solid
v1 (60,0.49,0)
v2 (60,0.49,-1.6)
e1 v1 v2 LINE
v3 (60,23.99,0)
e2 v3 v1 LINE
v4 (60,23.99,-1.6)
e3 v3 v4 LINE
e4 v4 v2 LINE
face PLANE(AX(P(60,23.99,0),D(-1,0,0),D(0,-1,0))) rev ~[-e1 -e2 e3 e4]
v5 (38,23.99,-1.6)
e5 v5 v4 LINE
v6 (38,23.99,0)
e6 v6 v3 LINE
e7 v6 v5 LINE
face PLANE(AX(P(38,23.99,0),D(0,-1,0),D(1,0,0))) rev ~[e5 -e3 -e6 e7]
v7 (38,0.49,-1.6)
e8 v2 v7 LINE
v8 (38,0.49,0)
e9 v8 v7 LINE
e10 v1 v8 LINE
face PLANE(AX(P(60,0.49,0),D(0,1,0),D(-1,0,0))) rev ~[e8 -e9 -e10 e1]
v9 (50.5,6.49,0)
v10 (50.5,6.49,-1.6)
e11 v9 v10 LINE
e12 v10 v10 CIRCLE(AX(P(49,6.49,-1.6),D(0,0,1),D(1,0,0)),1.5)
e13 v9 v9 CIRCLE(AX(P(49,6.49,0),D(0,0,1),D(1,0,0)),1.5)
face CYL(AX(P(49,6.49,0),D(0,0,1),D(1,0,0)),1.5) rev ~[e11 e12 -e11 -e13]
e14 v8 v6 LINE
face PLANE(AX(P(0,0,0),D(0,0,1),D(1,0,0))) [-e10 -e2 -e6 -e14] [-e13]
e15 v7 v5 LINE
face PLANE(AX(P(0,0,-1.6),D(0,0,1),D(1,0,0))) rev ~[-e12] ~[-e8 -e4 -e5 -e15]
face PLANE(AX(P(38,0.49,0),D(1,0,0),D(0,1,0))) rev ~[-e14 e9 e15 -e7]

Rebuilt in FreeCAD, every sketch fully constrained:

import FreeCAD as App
import Part
import Sketcher
from FreeCAD import Vector

doc = App.newDocument("Part")
body = doc.addObject("PartDesign::Body", "Body")

sketch1 = body.newObject("Sketcher::SketchObject", "Sketch")
sketch1.AttachmentSupport = (doc.getObject("XY_Plane"), [""])
sketch1.MapMode = "FlatFace"
sketch1.addGeometry([
    Part.LineSegment(Vector(60, 24, 0), Vector(38, 24, 0)),
    Part.LineSegment(Vector(38, 24, 0), Vector(38, 0.5, 0)),
    Part.LineSegment(Vector(38, 0.5, 0), Vector(60, 0.5, 0)),
    Part.LineSegment(Vector(60, 0.5, 0), Vector(60, 24, 0)),
    Part.Circle(Vector(49, 6.5, 0), Vector(0, 0, 1), 1.5),
], False)
sketch1.addConstraint([
    Sketcher.Constraint("Coincident", 0, 2, 1, 1),
    Sketcher.Constraint("Coincident", 1, 2, 2, 1),
    Sketcher.Constraint("Coincident", 2, 2, 3, 1),
    Sketcher.Constraint("Coincident", 3, 2, 0, 1),
    Sketcher.Constraint("Horizontal", 0),
    Sketcher.Constraint("Vertical", 1),
    Sketcher.Constraint("Horizontal", 2),
    Sketcher.Constraint("Vertical", 3),
    Sketcher.Constraint("Diameter", 4, 3.0),
    Sketcher.Constraint("DistanceX", -1, 1, 0, 2, 38.0),
    Sketcher.Constraint("DistanceX", -1, 1, 2, 2, 60.0),
    Sketcher.Constraint("DistanceY", -1, 1, 4, 3, 6.49),
    Sketcher.Constraint("DistanceY", -1, 1, 0, 2, 23.99),
    Sketcher.Constraint("DistanceY", -1, 1, 1, 2, 0.49),
    Sketcher.Constraint("DistanceX", -1, 1, 4, 3, 49.0),
])
pad1 = body.newObject("PartDesign::Pad", "Pad")
pad1.Profile = sketch1
pad1.Length = 1.6
pad1.Reversed = True

doc.recompute()
